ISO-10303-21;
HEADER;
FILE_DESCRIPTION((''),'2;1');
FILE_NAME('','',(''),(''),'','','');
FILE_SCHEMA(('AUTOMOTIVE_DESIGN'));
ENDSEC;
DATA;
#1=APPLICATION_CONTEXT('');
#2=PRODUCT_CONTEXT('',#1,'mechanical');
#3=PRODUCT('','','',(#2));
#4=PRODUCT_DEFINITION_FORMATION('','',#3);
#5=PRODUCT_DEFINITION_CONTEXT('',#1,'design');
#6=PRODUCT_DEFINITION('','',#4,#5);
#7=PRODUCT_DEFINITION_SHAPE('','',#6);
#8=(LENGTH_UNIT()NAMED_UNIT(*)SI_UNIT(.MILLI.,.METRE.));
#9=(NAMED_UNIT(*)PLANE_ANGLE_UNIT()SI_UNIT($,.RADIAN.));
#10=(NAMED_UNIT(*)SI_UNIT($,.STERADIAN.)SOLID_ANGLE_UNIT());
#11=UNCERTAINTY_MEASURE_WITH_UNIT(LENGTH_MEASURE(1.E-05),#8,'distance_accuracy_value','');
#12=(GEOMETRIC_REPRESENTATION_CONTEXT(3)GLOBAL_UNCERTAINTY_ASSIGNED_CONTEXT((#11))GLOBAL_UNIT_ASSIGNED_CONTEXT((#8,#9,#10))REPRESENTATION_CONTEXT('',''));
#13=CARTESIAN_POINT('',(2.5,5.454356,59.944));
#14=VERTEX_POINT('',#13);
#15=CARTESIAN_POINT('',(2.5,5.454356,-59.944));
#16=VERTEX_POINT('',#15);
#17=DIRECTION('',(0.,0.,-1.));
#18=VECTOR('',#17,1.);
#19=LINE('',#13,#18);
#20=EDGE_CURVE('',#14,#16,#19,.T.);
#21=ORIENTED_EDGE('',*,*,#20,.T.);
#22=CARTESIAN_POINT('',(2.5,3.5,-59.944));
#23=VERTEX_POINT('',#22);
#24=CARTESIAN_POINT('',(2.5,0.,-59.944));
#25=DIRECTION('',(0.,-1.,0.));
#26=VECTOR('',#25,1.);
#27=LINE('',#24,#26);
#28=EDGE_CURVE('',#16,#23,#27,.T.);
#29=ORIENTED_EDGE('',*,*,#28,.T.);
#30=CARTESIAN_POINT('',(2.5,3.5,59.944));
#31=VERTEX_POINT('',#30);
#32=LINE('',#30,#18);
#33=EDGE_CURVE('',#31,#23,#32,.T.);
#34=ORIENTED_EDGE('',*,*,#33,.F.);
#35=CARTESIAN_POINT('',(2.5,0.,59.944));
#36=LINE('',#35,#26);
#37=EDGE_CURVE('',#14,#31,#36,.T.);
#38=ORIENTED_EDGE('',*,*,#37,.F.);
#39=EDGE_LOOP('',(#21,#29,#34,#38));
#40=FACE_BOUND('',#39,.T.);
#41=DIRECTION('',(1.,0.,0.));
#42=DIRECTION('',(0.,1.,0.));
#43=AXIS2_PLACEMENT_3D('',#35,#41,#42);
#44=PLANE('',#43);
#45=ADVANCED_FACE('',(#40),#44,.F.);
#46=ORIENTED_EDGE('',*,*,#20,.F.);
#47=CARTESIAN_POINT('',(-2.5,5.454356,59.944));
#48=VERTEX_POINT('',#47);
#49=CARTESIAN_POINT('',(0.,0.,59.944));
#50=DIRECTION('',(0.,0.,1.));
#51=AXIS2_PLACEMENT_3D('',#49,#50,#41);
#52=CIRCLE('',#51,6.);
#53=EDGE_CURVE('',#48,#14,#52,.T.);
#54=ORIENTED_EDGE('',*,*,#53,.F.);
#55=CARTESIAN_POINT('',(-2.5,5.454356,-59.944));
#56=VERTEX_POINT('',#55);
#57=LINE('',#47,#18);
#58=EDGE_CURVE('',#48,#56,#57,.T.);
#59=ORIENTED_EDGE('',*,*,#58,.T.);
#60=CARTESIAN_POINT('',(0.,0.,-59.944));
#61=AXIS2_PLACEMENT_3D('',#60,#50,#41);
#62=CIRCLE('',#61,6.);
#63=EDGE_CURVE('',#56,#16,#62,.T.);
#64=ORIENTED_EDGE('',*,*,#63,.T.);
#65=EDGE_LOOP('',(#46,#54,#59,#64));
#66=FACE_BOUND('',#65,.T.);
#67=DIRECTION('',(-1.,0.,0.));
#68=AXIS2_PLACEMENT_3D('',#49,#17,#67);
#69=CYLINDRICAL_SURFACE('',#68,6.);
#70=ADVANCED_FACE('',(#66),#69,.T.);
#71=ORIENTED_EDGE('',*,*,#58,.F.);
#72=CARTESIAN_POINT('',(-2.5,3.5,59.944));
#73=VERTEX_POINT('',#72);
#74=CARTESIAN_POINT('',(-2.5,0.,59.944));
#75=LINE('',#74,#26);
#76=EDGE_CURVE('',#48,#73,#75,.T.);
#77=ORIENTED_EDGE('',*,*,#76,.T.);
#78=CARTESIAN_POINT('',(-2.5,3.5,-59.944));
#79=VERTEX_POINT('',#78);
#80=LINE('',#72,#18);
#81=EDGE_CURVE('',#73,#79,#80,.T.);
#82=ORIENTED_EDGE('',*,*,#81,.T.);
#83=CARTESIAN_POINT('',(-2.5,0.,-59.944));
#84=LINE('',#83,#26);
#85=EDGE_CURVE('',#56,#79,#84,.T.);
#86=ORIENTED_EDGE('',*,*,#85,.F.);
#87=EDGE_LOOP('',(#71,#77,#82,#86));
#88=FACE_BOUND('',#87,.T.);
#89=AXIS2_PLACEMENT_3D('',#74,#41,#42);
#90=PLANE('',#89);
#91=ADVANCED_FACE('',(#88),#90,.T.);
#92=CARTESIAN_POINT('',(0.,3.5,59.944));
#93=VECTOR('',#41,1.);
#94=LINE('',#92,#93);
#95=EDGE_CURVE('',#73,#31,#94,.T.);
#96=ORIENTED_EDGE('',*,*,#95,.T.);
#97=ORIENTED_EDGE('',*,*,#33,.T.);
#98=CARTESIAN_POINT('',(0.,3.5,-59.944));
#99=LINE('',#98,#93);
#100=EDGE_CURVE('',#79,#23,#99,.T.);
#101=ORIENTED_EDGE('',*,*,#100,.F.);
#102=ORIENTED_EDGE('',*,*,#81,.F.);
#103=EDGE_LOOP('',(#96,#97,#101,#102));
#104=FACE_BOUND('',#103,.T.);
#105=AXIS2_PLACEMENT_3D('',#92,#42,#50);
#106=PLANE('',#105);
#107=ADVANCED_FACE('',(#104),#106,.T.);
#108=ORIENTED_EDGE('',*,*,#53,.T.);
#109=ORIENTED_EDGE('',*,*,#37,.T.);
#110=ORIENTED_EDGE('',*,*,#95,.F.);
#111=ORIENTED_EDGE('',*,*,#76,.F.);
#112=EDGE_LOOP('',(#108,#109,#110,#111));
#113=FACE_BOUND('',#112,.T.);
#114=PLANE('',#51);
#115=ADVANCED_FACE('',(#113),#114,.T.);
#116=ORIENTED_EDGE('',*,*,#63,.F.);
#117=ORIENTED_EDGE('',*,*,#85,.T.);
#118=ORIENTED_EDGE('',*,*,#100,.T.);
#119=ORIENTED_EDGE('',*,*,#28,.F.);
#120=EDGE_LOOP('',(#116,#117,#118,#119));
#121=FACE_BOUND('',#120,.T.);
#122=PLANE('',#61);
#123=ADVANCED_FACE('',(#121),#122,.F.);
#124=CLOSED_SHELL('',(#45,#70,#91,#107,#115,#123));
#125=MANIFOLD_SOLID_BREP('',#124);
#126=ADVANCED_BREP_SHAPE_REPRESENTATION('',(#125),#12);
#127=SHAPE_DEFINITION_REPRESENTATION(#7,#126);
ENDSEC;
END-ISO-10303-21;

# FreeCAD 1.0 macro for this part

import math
import FreeCAD as App
import Part
import Sketcher

V = App.Vector
Q = App.Units.Quantity

doc = App.newDocument("Part")
body = doc.addObject("PartDesign::Body", "Body")

# Sketch on XY plane
sketch1 = body.newObject("Sketcher::SketchObject", "Sketch")
sketch1.AttachmentSupport = (doc.getObject("XY_Plane"), [""])
sketch1.MapMode = "FlatFace"
sketch1.addGeometry([
    Part.LineSegment(V(-2.5, 3.5, 0), V(-2.5, 5.5, 0)),  # 0
    Part.ArcOfCircle(Part.Circle(V(0, 0, 0), V(0, 0, 1), 6), math.radians(115), math.radians(360)),  # 1
    Part.ArcOfCircle(Part.Circle(V(0, 0, 0), V(0, 0, 1), 6), math.radians(0), math.radians(65)),  # 2
    Part.LineSegment(V(2.5, 5.5, 0), V(2.5, 3.5, 0)),  # 3
    Part.LineSegment(V(2.5, 3.5, 0), V(-2.5, 3.5, 0)),  # 4
], False)
sketch1.addConstraint([
    Sketcher.Constraint("Coincident", 0, 2, 1, 1),
    Sketcher.Constraint("Tangent", 1, 2, 2, 1),
    Sketcher.Constraint("Coincident", 2, 2, 3, 1),
    Sketcher.Constraint("Coincident", 3, 2, 4, 1),
    Sketcher.Constraint("Coincident", 4, 2, 0, 1),
    Sketcher.Constraint("Vertical", 0),
    Sketcher.Constraint("Vertical", 3),
    Sketcher.Constraint("Horizontal", 4),
    Sketcher.Constraint("Coincident", 1, 3, -1, 1),
    Sketcher.Constraint("Equal", 1, 2),
    Sketcher.Constraint("PointOnObject", 1, 2, -1),
    Sketcher.Constraint("Horizontal", 0, 2, 2, 2),
    Sketcher.Constraint("Radius", 1, Q("6 mm")),
    Sketcher.Constraint("DistanceX", 4, 2, 4, 1, Q("5 mm")),
    Sketcher.Constraint("DistanceY", -1, 1, 3, 2, Q("3.5 mm")),
])
pad1 = body.newObject("PartDesign::Pad", "Pad")
pad1.Profile = sketch1
pad1.Length = 119.888
pad1.Midplane = True

doc.recompute()
